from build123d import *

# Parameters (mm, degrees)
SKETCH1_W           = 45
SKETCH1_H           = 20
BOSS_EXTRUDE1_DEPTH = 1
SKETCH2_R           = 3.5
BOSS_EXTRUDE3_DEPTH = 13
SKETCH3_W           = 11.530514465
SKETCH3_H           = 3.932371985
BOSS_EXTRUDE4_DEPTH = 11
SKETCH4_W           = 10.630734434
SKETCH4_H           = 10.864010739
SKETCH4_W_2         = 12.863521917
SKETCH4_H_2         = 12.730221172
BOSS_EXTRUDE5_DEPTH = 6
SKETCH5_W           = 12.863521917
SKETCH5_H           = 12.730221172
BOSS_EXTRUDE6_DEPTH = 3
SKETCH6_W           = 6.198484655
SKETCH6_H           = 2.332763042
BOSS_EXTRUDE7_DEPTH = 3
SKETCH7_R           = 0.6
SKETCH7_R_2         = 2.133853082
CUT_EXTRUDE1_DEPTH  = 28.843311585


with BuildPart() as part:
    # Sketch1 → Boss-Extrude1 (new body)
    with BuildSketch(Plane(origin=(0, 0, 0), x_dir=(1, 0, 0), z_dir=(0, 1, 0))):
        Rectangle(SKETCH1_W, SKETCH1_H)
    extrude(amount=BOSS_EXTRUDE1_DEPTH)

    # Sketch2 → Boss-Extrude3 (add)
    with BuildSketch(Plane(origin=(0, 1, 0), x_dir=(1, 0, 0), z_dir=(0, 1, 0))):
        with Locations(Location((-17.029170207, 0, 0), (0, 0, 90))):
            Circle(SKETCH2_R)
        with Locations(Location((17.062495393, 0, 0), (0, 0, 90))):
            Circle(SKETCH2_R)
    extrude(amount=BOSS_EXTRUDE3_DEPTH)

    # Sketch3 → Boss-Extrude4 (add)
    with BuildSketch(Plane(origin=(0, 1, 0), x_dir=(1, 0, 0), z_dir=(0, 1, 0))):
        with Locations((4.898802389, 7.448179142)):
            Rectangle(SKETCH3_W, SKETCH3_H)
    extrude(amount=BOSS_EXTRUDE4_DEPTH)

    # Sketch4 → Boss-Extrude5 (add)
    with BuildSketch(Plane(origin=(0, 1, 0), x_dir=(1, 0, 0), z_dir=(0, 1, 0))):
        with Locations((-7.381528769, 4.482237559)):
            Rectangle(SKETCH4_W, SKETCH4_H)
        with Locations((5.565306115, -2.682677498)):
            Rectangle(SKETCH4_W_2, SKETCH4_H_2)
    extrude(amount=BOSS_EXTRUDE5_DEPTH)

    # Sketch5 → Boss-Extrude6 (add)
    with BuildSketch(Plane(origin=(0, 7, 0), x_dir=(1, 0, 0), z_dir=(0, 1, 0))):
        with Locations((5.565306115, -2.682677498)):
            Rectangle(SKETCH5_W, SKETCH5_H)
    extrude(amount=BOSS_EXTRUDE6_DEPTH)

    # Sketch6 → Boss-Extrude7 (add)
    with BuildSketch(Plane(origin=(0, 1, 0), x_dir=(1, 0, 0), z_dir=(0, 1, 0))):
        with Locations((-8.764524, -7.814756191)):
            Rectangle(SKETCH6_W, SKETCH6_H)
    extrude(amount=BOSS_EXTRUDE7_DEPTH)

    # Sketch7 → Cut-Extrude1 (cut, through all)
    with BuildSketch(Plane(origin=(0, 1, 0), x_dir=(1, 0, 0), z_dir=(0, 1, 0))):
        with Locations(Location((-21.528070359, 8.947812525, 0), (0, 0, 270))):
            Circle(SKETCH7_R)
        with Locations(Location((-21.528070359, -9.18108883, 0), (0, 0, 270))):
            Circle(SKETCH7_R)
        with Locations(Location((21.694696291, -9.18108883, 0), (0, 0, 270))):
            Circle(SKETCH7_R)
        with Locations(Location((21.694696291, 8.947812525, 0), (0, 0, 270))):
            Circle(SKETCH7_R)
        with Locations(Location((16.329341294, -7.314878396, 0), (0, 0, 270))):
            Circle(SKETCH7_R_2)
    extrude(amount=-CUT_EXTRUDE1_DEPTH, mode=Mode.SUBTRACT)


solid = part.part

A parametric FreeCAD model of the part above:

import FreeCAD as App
import Part
import Sketcher
Q = App.Units.Quantity


def add_polygon(sketch, points):
    """Adds a closed chain of lines whose ends are joined by coincident constraints."""
    first, n = sketch.GeometryCount, len(points)
    for a, b in zip(points, points[1:] + points[:1]):
        sketch.addGeometry(Part.LineSegment(App.Vector(*a, 0), App.Vector(*b, 0)), False)
    for i in range(n):
        sketch.addConstraint(Sketcher.Constraint("Coincident", first + i, 2, first + (i + 1) % n, 1))

doc = App.newDocument("Part")
params = doc.addObject("Spreadsheet::Sheet", "Params")
for row, (alias, value) in enumerate([
    ("sketch1_width", "45 mm"),
    ("sketch1_height", "20 mm"),
    ("pad1_length", "1 mm"),
    ("sketch2_diameter", "7 mm"),
    ("pad2_length", "13 mm"),
    ("pad3_length", "11 mm"),
    ("pad4_length", "6 mm"),
    ("pad5_length", "3 mm"),
    ("pad6_length", "3 mm"),
    ("sketch7_diameter", "1.2 mm"),
], start=1):
    params.set(f"A{row}", alias)
    params.set(f"B{row}", "=" + value)
    params.setAlias(f"B{row}", alias)

body = doc.addObject("PartDesign::Body", "Body")

sketch1 = body.newObject("Sketcher::SketchObject", "Sketch")
sketch1.AttachmentSupport = (doc.getObject("XZ_Plane"), [""])
sketch1.MapMode = "FlatFace"
add_polygon(sketch1, [(-22.5, -10), (-22.5, 10), (22.5, 10), (22.5, -10)])
sketch1.addConstraint(Sketcher.Constraint("Vertical", 0))
sketch1.addConstraint(Sketcher.Constraint("Horizontal", 1))
sketch1.addConstraint(Sketcher.Constraint("Vertical", 2))
sketch1.addConstraint(Sketcher.Constraint("Horizontal", 3))
sketch1.addConstraint(Sketcher.Constraint("Symmetric", 0, 2, 2, 2, -1, 1))
sketch1.addConstraint(Sketcher.Constraint("DistanceX", 1, 1, 1, 2, Q("45 mm")))
sketch1.addConstraint(Sketcher.Constraint("DistanceY", 0, 1, 0, 2, Q("20 mm")))
sketch1.setExpression("Constraints[9]", "Params.sketch1_width")
sketch1.setExpression("Constraints[10]", "Params.sketch1_height")
pad1 = body.newObject("PartDesign::Pad", "Pad")
pad1.Profile = sketch1
pad1.setExpression("Length", "Params.pad1_length")
pad1.Reversed = True

sketch2 = body.newObject("Sketcher::SketchObject", "Sketch001")
sketch2.AttachmentSupport = (doc.getObject("XZ_Plane"), [""])
sketch2.MapMode = "FlatFace"
sketch2.AttachmentOffset = App.Placement(App.Vector(0, 0, -1), App.Rotation())
sketch2.addGeometry(Part.Circle(App.Vector(-17.02917, 0, 0), App.Vector(0, 0, 1), 3.5), False)
sketch2.addGeometry(Part.Circle(App.Vector(17.062495, 0, 0), App.Vector(0, 0, 1), 3.5), False)
sketch2.addConstraint(Sketcher.Constraint("Equal", 0, 1))
sketch2.addConstraint(Sketcher.Constraint("PointOnObject", 0, 3, -1))
sketch2.addConstraint(Sketcher.Constraint("PointOnObject", 1, 3, -1))
sketch2.addConstraint(Sketcher.Constraint("Diameter", 0, Q("7 mm")))
sketch2.addConstraint(Sketcher.Constraint("DistanceX", 0, 3, -1, 1, Q("17.02917 mm")))
sketch2.addConstraint(Sketcher.Constraint("DistanceX", -1, 1, 1, 3, Q("17.062495 mm")))
sketch2.setExpression("Constraints[3]", "Params.sketch2_diameter")
pad2 = body.newObject("PartDesign::Pad", "Pad001")
pad2.Profile = sketch2
pad2.setExpression("Length", "Params.pad2_length")
pad2.Reversed = True

sketch3 = body.newObject("Sketcher::SketchObject", "Sketch002")
sketch3.AttachmentSupport = (doc.getObject("XZ_Plane"), [""])
sketch3.MapMode = "FlatFace"
sketch3.AttachmentOffset = App.Placement(App.Vector(0, 0, -1), App.Rotation())
add_polygon(sketch3, [(-0.866455, -9.414365), (-0.866455, -5.481993), (10.66406, -5.481993), (10.66406, -9.414365)])
sketch3.addConstraint(Sketcher.Constraint("Vertical", 0))
sketch3.addConstraint(Sketcher.Constraint("Horizontal", 1))
sketch3.addConstraint(Sketcher.Constraint("Vertical", 2))
sketch3.addConstraint(Sketcher.Constraint("Horizontal", 3))
sketch3.addConstraint(Sketcher.Constraint("DistanceY", 0, 1, 0, 2, Q("3.932372 mm")))
sketch3.addConstraint(Sketcher.Constraint("DistanceX", 1, 1, 1, 2, Q("11.530514 mm")))
sketch3.addConstraint(Sketcher.Constraint("DistanceX", -1, 1, 1, 2, Q("10.66406 mm")))
sketch3.addConstraint(Sketcher.Constraint("DistanceY", 0, 2, -1, 1, Q("5.481993 mm")))
pad3 = body.newObject("PartDesign::Pad", "Pad002")
pad3.Profile = sketch3
pad3.setExpression("Length", "Params.pad3_length")
pad3.Reversed = True

sketch4 = body.newObject("Sketcher::SketchObject", "Sketch003")
sketch4.AttachmentSupport = (doc.getObject("XZ_Plane"), [""])
sketch4.MapMode = "FlatFace"
sketch4.AttachmentOffset = App.Placement(App.Vector(0, 0, -1), App.Rotation())
add_polygon(sketch4, [(-12.696896, -9.914243), (-12.696896, 0.949768), (-2.066162, 0.949768), (-2.066162, -9.914243)])
add_polygon(sketch4, [(-0.866455, -3.682433), (-0.866455, 9.047788), (11.997067, 9.047788), (11.997067, -3.682433)])
sketch4.addConstraint(Sketcher.Constraint("Vertical", 0))
sketch4.addConstraint(Sketcher.Constraint("Horizontal", 1))
sketch4.addConstraint(Sketcher.Constraint("Vertical", 2))
sketch4.addConstraint(Sketcher.Constraint("Horizontal", 3))
sketch4.addConstraint(Sketcher.Constraint("Vertical", 4))
sketch4.addConstraint(Sketcher.Constraint("Horizontal", 5))
sketch4.addConstraint(Sketcher.Constraint("Vertical", 6))
sketch4.addConstraint(Sketcher.Constraint("Horizontal", 7))
sketch4.addConstraint(Sketcher.Constraint("DistanceX", 5, 1, 5, 2, Q("12.863522 mm")))
sketch4.addConstraint(Sketcher.Constraint("DistanceY", 0, 1, 0, 2, Q("10.864011 mm")))
sketch4.addConstraint(Sketcher.Constraint("DistanceY", 4, 1, 4, 2, Q("12.730221 mm")))
sketch4.addConstraint(Sketcher.Constraint("DistanceY", 6, 2, 1, 2, Q("4.632201 mm")))
sketch4.addConstraint(Sketcher.Constraint("DistanceX", 1, 1, 1, 2, Q("10.630734 mm")))
sketch4.addConstraint(Sketcher.Constraint("DistanceX", 1, 2, -1, 1, Q("2.066162 mm")))
sketch4.addConstraint(Sketcher.Constraint("DistanceY", -1, 1, 4, 2, Q("9.047788 mm")))
sketch4.addConstraint(Sketcher.Constraint("DistanceX", 0, 2, 4, 2, Q("11.830441 mm")))
pad4 = body.newObject("PartDesign::Pad", "Pad003")
pad4.Profile = sketch4
pad4.setExpression("Length", "Params.pad4_length")
pad4.Reversed = True

sketch5 = body.newObject("Sketcher::SketchObject", "Sketch004")
sketch5.AttachmentSupport = (doc.getObject("XZ_Plane"), [""])
sketch5.MapMode = "FlatFace"
sketch5.AttachmentOffset = App.Placement(App.Vector(0, 0, -7), App.Rotation())
add_polygon(sketch5, [(-0.866455, -3.682433), (-0.866455, 9.047788), (11.997067, 9.047788), (11.997067, -3.682433)])
sketch5.addConstraint(Sketcher.Constraint("Vertical", 0))
sketch5.addConstraint(Sketcher.Constraint("Horizontal", 1))
sketch5.addConstraint(Sketcher.Constraint("Vertical", 2))
sketch5.addConstraint(Sketcher.Constraint("Horizontal", 3))
sketch5.addConstraint(Sketcher.Constraint("DistanceX", 1, 1, 1, 2, Q("12.863522 mm")))
sketch5.addConstraint(Sketcher.Constraint("DistanceY", 0, 1, 0, 2, Q("12.730221 mm")))
sketch5.addConstraint(Sketcher.Constraint("DistanceY", -1, 1, 0, 2, Q("9.047788 mm")))
sketch5.addConstraint(Sketcher.Constraint("DistanceX", 0, 2, -1, 1, Q("0.866455 mm")))
pad5 = body.newObject("PartDesign::Pad", "Pad004")
pad5.Profile = sketch5
pad5.setExpression("Length", "Params.pad5_length")
pad5.Reversed = True

sketch6 = body.newObject("Sketcher::SketchObject", "Sketch005")
sketch6.AttachmentSupport = (doc.getObject("XZ_Plane"), [""])
sketch6.MapMode = "FlatFace"
sketch6.AttachmentOffset = App.Placement(App.Vector(0, 0, -1), App.Rotation())
add_polygon(sketch6, [(-11.863766, 6.648375), (-11.863766, 8.981138), (-5.665282, 8.981138), (-5.665282, 6.648375)])
sketch6.addConstraint(Sketcher.Constraint("Vertical", 0))
sketch6.addConstraint(Sketcher.Constraint("Horizontal", 1))
sketch6.addConstraint(Sketcher.Constraint("Vertical", 2))
sketch6.addConstraint(Sketcher.Constraint("Horizontal", 3))
sketch6.addConstraint(Sketcher.Constraint("DistanceX", 1, 1, 1, 2, Q("6.198485 mm")))
sketch6.addConstraint(Sketcher.Constraint("DistanceY", 0, 1, 0, 2, Q("2.332763 mm")))
sketch6.addConstraint(Sketcher.Constraint("DistanceX", 1, 2, -1, 1, Q("5.665282 mm")))
sketch6.addConstraint(Sketcher.Constraint("DistanceY", -1, 1, 0, 2, Q("8.981138 mm")))
pad6 = body.newObject("PartDesign::Pad", "Pad005")
pad6.Profile = sketch6
pad6.setExpression("Length", "Params.pad6_length")
pad6.Reversed = True

sketch7 = body.newObject("Sketcher::SketchObject", "Sketch006")
sketch7.AttachmentSupport = (doc.getObject("XZ_Plane"), [""])
sketch7.MapMode = "FlatFace"
sketch7.AttachmentOffset = App.Placement(App.Vector(0, 0, -1), App.Rotation())
sketch7.addGeometry(Part.Circle(App.Vector(-21.52807, -8.947813, 0), App.Vector(0, 0, 1), 0.6), False)
sketch7.addGeometry(Part.Circle(App.Vector(-21.52807, 9.181089, 0), App.Vector(0, 0, 1), 0.6), False)
sketch7.addGeometry(Part.Circle(App.Vector(21.694696, 9.181089, 0), App.Vector(0, 0, 1), 0.6), False)
sketch7.addGeometry(Part.Circle(App.Vector(21.694696, -8.947813, 0), App.Vector(0, 0, 1), 0.6), False)
sketch7.addGeometry(Part.Circle(App.Vector(16.329341, 7.314878, 0), App.Vector(0, 0, 1), 2.133853), False)
sketch7.addConstraint(Sketcher.Constraint("Equal", 0, 1))
sketch7.addConstraint(Sketcher.Constraint("Equal", 1, 2))
sketch7.addConstraint(Sketcher.Constraint("Equal", 2, 3))
sketch7.addConstraint(Sketcher.Constraint("Horizontal", 1, 3, 2, 3))
sketch7.addConstraint(Sketcher.Constraint("Horizontal", 0, 3, 3, 3))
sketch7.addConstraint(Sketcher.Constraint("Vertical", 0, 3, 1, 3))
sketch7.addConstraint(Sketcher.Constraint("Vertical", 2, 3, 3, 3))
sketch7.addConstraint(Sketcher.Constraint("Diameter", 0, Q("1.2 mm")))
sketch7.addConstraint(Sketcher.Constraint("Diameter", 4, Q("4.267706 mm")))
sketch7.addConstraint(Sketcher.Constraint("DistanceY", 0, 3, 1, 3, Q("18.128901 mm")))
sketch7.addConstraint(Sketcher.Constraint("DistanceX", 0, 3, -1, 1, Q("21.52807 mm")))
sketch7.addConstraint(Sketcher.Constraint("DistanceY", -1, 1, 1, 3, Q("9.181089 mm")))
sketch7.addConstraint(Sketcher.Constraint("DistanceX", -1, 1, 4, 3, Q("16.329341 mm")))
sketch7.addConstraint(Sketcher.Constraint("DistanceY", -1, 1, 4, 3, Q("7.314878 mm")))
sketch7.addConstraint(Sketcher.Constraint("DistanceX", -1, 1, 2, 3, Q("21.694696 mm")))
sketch7.setExpression("Constraints[7]", "Params.sketch7_diameter")
pocket1 = body.newObject("PartDesign::Pocket", "Pocket")
pocket1.Profile = sketch7
pocket1.Type = "ThroughAll"
pocket1.Reversed = True

doc.recompute()
